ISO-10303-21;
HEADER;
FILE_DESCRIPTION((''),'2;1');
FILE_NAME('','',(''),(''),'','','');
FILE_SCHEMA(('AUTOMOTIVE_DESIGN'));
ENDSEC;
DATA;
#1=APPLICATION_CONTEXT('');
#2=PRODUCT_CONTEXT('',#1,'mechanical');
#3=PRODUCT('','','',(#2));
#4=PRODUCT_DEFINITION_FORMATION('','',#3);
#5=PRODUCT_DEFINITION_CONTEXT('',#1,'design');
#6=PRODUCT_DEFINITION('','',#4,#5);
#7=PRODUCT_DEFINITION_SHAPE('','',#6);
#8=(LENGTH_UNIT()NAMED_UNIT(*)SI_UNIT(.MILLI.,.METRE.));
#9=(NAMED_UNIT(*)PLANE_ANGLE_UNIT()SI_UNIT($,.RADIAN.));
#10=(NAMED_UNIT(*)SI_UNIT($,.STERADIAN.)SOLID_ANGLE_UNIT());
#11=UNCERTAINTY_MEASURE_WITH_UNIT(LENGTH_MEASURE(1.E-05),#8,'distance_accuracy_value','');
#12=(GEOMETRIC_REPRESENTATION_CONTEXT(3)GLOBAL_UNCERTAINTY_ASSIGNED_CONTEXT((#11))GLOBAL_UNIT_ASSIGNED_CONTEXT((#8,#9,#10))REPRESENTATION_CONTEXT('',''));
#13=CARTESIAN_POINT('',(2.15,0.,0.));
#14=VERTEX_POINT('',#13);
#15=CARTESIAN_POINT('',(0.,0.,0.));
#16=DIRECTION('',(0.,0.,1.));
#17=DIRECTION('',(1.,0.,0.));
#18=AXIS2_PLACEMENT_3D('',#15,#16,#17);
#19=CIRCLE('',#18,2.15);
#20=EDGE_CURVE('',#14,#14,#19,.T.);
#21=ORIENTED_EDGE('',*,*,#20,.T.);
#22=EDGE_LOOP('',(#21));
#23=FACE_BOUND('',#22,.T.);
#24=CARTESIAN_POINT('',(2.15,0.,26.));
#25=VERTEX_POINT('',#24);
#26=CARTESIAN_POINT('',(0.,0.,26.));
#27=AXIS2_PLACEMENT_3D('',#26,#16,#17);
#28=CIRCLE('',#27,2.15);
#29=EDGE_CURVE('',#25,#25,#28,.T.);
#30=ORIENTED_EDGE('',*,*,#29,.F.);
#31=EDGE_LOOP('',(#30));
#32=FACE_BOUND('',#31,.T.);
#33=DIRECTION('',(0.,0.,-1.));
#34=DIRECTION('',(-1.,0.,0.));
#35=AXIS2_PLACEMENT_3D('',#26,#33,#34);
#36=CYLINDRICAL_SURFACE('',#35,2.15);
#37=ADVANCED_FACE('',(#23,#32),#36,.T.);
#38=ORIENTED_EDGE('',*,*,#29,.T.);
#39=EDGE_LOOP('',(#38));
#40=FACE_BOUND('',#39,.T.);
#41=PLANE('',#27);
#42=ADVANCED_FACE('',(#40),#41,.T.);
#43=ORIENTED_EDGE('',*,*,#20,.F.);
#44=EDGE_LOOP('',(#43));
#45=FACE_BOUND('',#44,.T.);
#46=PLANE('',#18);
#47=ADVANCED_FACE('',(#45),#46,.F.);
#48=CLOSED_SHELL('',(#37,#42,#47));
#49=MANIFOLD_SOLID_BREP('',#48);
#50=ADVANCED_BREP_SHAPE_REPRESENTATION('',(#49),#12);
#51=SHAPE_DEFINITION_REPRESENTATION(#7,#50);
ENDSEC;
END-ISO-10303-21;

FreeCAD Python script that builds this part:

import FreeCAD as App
import Part
import Sketcher

V = App.Vector
Q = App.Units.Quantity

doc = App.newDocument("Part")
body = doc.addObject("PartDesign::Body", "Body")

# Sketch on XY plane
sketch1 = body.newObject("Sketcher::SketchObject", "Sketch")
sketch1.AttachmentSupport = (doc.getObject("XY_Plane"), [""])
sketch1.MapMode = "FlatFace"
sketch1.addGeometry(Part.Circle(V(0, 0, 0), V(0, 0, 1), 2.1), False)
sketch1.addConstraint(Sketcher.Constraint("Coincident", 0, 3, -1, 1))
sketch1.addConstraint(Sketcher.Constraint("Diameter", 0, Q("4.3 mm")))
pad1 = body.newObject("PartDesign::Pad", "Pad")
pad1.Profile = sketch1
pad1.Length = 26

doc.recompute()
